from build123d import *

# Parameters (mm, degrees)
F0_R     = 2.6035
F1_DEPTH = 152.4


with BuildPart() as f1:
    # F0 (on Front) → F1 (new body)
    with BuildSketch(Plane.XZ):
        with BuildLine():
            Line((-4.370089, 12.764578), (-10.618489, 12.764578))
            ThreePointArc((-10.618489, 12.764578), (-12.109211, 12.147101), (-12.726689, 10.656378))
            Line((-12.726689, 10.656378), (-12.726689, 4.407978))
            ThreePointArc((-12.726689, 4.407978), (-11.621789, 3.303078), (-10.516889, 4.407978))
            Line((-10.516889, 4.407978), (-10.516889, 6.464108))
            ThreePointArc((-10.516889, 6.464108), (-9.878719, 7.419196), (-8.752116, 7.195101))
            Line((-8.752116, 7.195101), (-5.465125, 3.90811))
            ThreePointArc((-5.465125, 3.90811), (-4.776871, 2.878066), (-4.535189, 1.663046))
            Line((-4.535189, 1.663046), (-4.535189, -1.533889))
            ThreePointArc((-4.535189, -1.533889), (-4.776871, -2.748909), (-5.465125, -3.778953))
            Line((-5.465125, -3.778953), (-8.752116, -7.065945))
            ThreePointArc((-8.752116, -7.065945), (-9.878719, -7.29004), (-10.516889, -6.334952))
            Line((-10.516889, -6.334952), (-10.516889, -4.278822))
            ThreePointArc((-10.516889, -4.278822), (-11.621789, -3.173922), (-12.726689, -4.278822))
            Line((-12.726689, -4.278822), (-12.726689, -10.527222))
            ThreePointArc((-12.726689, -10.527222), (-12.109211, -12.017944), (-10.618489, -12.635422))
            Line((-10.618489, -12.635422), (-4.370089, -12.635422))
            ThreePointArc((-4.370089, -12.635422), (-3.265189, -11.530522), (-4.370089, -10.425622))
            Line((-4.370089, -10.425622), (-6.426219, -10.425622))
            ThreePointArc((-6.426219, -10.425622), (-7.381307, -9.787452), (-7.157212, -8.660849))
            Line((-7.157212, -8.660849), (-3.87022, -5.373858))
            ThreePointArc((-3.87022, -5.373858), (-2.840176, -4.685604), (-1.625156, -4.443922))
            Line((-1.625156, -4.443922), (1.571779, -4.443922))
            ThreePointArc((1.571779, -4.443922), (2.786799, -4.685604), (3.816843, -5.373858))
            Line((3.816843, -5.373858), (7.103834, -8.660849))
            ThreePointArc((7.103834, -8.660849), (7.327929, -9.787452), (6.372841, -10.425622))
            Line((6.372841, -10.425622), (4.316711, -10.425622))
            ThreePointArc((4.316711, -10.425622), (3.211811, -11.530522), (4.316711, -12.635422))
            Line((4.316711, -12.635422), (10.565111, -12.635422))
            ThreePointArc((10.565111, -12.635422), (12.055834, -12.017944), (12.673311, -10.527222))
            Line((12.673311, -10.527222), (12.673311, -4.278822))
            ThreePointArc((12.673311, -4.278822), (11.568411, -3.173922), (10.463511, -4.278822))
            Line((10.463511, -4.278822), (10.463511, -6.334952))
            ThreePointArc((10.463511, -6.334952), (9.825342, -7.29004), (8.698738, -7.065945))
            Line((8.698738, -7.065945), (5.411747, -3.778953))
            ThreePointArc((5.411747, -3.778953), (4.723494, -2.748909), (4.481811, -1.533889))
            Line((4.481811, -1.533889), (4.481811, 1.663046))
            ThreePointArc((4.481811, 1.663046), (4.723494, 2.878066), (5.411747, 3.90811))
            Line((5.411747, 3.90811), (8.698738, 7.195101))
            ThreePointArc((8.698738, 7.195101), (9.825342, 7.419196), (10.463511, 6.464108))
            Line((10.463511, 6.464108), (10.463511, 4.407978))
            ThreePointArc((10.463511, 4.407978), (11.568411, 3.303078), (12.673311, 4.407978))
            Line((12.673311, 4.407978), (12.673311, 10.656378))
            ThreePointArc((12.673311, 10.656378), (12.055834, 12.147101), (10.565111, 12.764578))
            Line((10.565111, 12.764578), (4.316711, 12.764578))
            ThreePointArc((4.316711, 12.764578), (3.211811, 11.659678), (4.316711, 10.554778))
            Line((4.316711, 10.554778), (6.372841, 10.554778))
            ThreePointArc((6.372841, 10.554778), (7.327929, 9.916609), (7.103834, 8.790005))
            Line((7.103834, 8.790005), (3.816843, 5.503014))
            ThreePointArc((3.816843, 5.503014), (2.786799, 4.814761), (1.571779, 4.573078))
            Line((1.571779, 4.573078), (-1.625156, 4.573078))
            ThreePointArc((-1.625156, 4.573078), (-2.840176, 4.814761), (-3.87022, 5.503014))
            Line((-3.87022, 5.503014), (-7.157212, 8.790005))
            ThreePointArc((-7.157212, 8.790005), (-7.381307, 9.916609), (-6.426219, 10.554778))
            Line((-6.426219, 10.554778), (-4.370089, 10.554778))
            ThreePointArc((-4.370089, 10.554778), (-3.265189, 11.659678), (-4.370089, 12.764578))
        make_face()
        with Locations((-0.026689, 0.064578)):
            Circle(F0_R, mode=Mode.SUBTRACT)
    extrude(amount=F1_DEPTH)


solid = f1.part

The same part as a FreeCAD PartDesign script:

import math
import FreeCAD as App
import Part
import Sketcher

V = App.Vector
Q = App.Units.Quantity

doc = App.newDocument("Part")
body = doc.addObject("PartDesign::Body", "Body")

sketch1 = body.newObject("Sketcher::SketchObject", "Sketch")
sketch1.AttachmentSupport = (doc.getObject("XZ_Plane"), [""])
sketch1.MapMode = "FlatFace"
sketch1.addGeometry([
    Part.LineSegment(V(-4.370089, 12.764578, 0), V(-10.618489, 12.764578, 0)),
    Part.ArcOfCircle(Part.Circle(V(-10.618489, 10.656378, 0), V(0, 0, 1), 2.1082), math.radians(90.000001), math.radians(179.999999)),
    Part.LineSegment(V(-12.726689, 10.656378, 0), V(-12.726689, 4.407978, 0)),
    Part.ArcOfCircle(Part.Circle(V(-11.621789, 4.407978, 0), V(0, 0, 1), 1.1049), math.radians(180), math.radians(360)),
    Part.LineSegment(V(-10.516889, 4.407978, 0), V(-10.516889, 6.464108, 0)),
    Part.ArcOfCircle(Part.Circle(V(-9.483109, 6.464107, 0), V(0, 0, 1), 1.03378), math.radians(45.000041), math.radians(179.999964)),
    Part.LineSegment(V(-8.752116, 7.195101, 0), V(-5.465125, 3.90811, 0)),
    Part.ArcOfCircle(Part.Circle(V(-7.710183, 1.663049, 0), V(0, 0, 1), 3.174994), math.radians(-0.000045), math.radians(45.000047)),
    Part.LineSegment(V(-4.535189, 1.663046, 0), V(-4.535189, -1.533889, 0)),
    Part.ArcOfCircle(Part.Circle(V(-7.710183, -1.533892, 0), V(0, 0, 1), 3.174994), math.radians(-45.000047), math.radians(0.000045)),
    Part.LineSegment(V(-5.465125, -3.778953, 0), V(-8.752116, -7.065945, 0)),
    Part.ArcOfCircle(Part.Circle(V(-9.483109, -6.334951, 0), V(0, 0, 1), 1.03378), math.radians(-179.999964), math.radians(-45.000041)),
    Part.LineSegment(V(-10.516889, -6.334952, 0), V(-10.516889, -4.278822, 0)),
    Part.ArcOfCircle(Part.Circle(V(-11.621789, -4.278822, 0), V(0, 0, 1), 1.1049), math.radians(0), math.radians(180)),
    Part.LineSegment(V(-12.726689, -4.278822, 0), V(-12.726689, -10.527222, 0)),
    Part.ArcOfCircle(Part.Circle(V(-10.618487, -10.52722, 0), V(0, 0, 1), 2.108202), math.radians(-179.999952), math.radians(-90.000048)),
    Part.LineSegment(V(-10.618489, -12.635422, 0), V(-4.370089, -12.635422, 0)),
    Part.ArcOfCircle(Part.Circle(V(-4.370089, -11.530522, 0), V(0, 0, 1), 1.1049), math.radians(-90), math.radians(90)),
    Part.LineSegment(V(-4.370089, -10.425622, 0), V(-6.426219, -10.425622, 0)),
    Part.ArcOfCircle(Part.Circle(V(-6.426218, -9.391842, 0), V(0, 0, 1), 1.03378), math.radians(135.000041), math.radians(269.999964)),
    Part.LineSegment(V(-7.157212, -8.660849, 0), V(-3.87022, -5.373858, 0)),
    Part.ArcOfCircle(Part.Circle(V(-1.625159, -7.618916, 0), V(0, 0, 1), 3.174994), math.radians(89.999955), math.radians(135.000047)),
    Part.LineSegment(V(-1.625156, -4.443922, 0), V(1.571779, -4.443922, 0)),
    Part.ArcOfCircle(Part.Circle(V(1.571782, -7.618916, 0), V(0, 0, 1), 3.174994), math.radians(44.999953), math.radians(90.000045)),
    Part.LineSegment(V(3.816843, -5.373858, 0), V(7.103834, -8.660849, 0)),
    Part.ArcOfCircle(Part.Circle(V(6.37284, -9.391842, 0), V(0, 0, 1), 1.03378), math.radians(-89.999964), math.radians(44.999959)),
    Part.LineSegment(V(6.372841, -10.425622, 0), V(4.316711, -10.425622, 0)),
    Part.ArcOfCircle(Part.Circle(V(4.316711, -11.530522, 0), V(0, 0, 1), 1.1049), math.radians(90), math.radians(270)),
    Part.LineSegment(V(4.316711, -12.635422, 0), V(10.565111, -12.635422, 0)),
    Part.ArcOfCircle(Part.Circle(V(10.565111, -10.527222, 0), V(0, 0, 1), 2.1082), math.radians(-89.999999), math.radians(-0.000001)),
    Part.LineSegment(V(12.673311, -10.527222, 0), V(12.673311, -4.278822, 0)),
    Part.ArcOfCircle(Part.Circle(V(11.568411, -4.278822, 0), V(0, 0, 1), 1.1049), math.radians(0), math.radians(180)),
    Part.LineSegment(V(10.463511, -4.278822, 0), V(10.463511, -6.334952, 0)),
    Part.ArcOfCircle(Part.Circle(V(9.429731, -6.334952, 0), V(0, 0, 1), 1.03378), math.radians(-134.999991), math.radians(-0.000004)),
    Part.LineSegment(V(8.698738, -7.065945, 0), V(5.411747, -3.778953, 0)),
    Part.ArcOfCircle(Part.Circle(V(7.656816, -1.533887, 0), V(0, 0, 1), 3.175005), math.radians(-179.999961), math.radians(-135.000037)),
    Part.LineSegment(V(4.481811, -1.533889, 0), V(4.481811, 1.663046, 0)),
    Part.ArcOfCircle(Part.Circle(V(7.656816, 1.663044, 0), V(0, 0, 1), 3.175005), math.radians(135.000037), math.radians(179.999961)),
    Part.LineSegment(V(5.411747, 3.90811, 0), V(8.698738, 7.195101, 0)),
    Part.ArcOfCircle(Part.Circle(V(9.429731, 6.464108, 0), V(0, 0, 1), 1.03378), math.radians(0.000004), math.radians(134.999991)),
    Part.LineSegment(V(10.463511, 6.464108, 0), V(10.463511, 4.407978, 0)),
    Part.ArcOfCircle(Part.Circle(V(11.568411, 4.407978, 0), V(0, 0, 1), 1.1049), math.radians(180), math.radians(360)),
    Part.LineSegment(V(12.673311, 4.407978, 0), V(12.673311, 10.656378, 0)),
    Part.ArcOfCircle(Part.Circle(V(10.565113, 10.65638, 0), V(0, 0, 1), 2.108198), math.radians(-0.000045), math.radians(90.000045)),
    Part.LineSegment(V(10.565111, 12.764578, 0), V(4.316711, 12.764578, 0)),
    Part.ArcOfCircle(Part.Circle(V(4.316711, 11.659678, 0), V(0, 0, 1), 1.1049), math.radians(90), math.radians(270)),
    Part.LineSegment(V(4.316711, 10.554778, 0), V(6.372841, 10.554778, 0)),
    Part.ArcOfCircle(Part.Circle(V(6.372841, 9.520998, 0), V(0, 0, 1), 1.03378), math.radians(-44.999991), math.radians(89.999996)),
    Part.LineSegment(V(7.103834, 8.790005, 0), V(3.816843, 5.503014, 0)),
    Part.ArcOfCircle(Part.Circle(V(1.571777, 7.748083, 0), V(0, 0, 1), 3.175005), math.radians(-89.999961), math.radians(-45.000037)),
    Part.LineSegment(V(1.571779, 4.573078, 0), V(-1.625156, 4.573078, 0)),
    Part.ArcOfCircle(Part.Circle(V(-1.625154, 7.748083, 0), V(0, 0, 1), 3.175005), math.radians(-134.999963), math.radians(-90.000039)),
    Part.LineSegment(V(-3.87022, 5.503014, 0), V(-7.157212, 8.790005, 0)),
    Part.ArcOfCircle(Part.Circle(V(-6.426219, 9.520998, 0), V(0, 0, 1), 1.03378), math.radians(90.000004), math.radians(224.999991)),
    Part.LineSegment(V(-6.426219, 10.554778, 0), V(-4.370089, 10.554778, 0)),
    Part.ArcOfCircle(Part.Circle(V(-4.370089, 11.659678, 0), V(0, 0, 1), 1.1049), math.radians(-90), math.radians(90)),
    Part.Circle(V(-0.026689, 0.064578, 0), V(0, 0, 1), 2.6035),
], False)
sketch1.addConstraint([
    Sketcher.Constraint("Tangent", 0, 2, 1, 1),
    Sketcher.Constraint("Tangent", 1, 2, 2, 1),
    Sketcher.Constraint("Tangent", 2, 2, 3, 1),
    Sketcher.Constraint("Tangent", 3, 2, 4, 1),
    Sketcher.Constraint("Tangent", 4, 2, 5, 2),
    Sketcher.Constraint("Tangent", 5, 1, 6, 1),
    Sketcher.Constraint("Tangent", 6, 2, 7, 2),
    Sketcher.Constraint("Tangent", 7, 1, 8, 1),
    Sketcher.Constraint("Tangent", 8, 2, 9, 2),
    Sketcher.Constraint("Tangent", 9, 1, 10, 1),
    Sketcher.Constraint("Tangent", 10, 2, 11, 2),
    Sketcher.Constraint("Tangent", 11, 1, 12, 1),
    Sketcher.Constraint("Tangent", 12, 2, 13, 1),
    Sketcher.Constraint("Tangent", 13, 2, 14, 1),
    Sketcher.Constraint("Tangent", 14, 2, 15, 1),
    Sketcher.Constraint("Tangent", 15, 2, 16, 1),
    Sketcher.Constraint("Tangent", 16, 2, 17, 1),
    Sketcher.Constraint("Tangent", 17, 2, 18, 1),
    Sketcher.Constraint("Tangent", 18, 2, 19, 2),
    Sketcher.Constraint("Tangent", 19, 1, 20, 1),
    Sketcher.Constraint("Tangent", 20, 2, 21, 2),
    Sketcher.Constraint("Tangent", 21, 1, 22, 1),
    Sketcher.Constraint("Tangent", 22, 2, 23, 2),
    Sketcher.Constraint("Tangent", 23, 1, 24, 1),
    Sketcher.Constraint("Tangent", 24, 2, 25, 2),
    Sketcher.Constraint("Tangent", 25, 1, 26, 1),
    Sketcher.Constraint("Tangent", 26, 2, 27, 1),
    Sketcher.Constraint("Tangent", 27, 2, 28, 1),
    Sketcher.Constraint("Tangent", 28, 2, 29, 1),
    Sketcher.Constraint("Tangent", 29, 2, 30, 1),
    Sketcher.Constraint("Tangent", 30, 2, 31, 1),
    Sketcher.Constraint("Tangent", 31, 2, 32, 1),
    Sketcher.Constraint("Tangent", 32, 2, 33, 2),
    Sketcher.Constraint("Tangent", 33, 1, 34, 1),
    Sketcher.Constraint("Tangent", 34, 2, 35, 2),
    Sketcher.Constraint("Tangent", 35, 1, 36, 1),
    Sketcher.Constraint("Tangent", 36, 2, 37, 2),
    Sketcher.Constraint("Tangent", 37, 1, 38, 1),
    Sketcher.Constraint("Tangent", 38, 2, 39, 2),
    Sketcher.Constraint("Tangent", 39, 1, 40, 1),
    Sketcher.Constraint("Tangent", 40, 2, 41, 1),
    Sketcher.Constraint("Tangent", 41, 2, 42, 1),
    Sketcher.Constraint("Tangent", 42, 2, 43, 1),
    Sketcher.Constraint("Tangent", 43, 2, 44, 1),
    Sketcher.Constraint("Tangent", 44, 2, 45, 1),
    Sketcher.Constraint("Tangent", 45, 2, 46, 1),
    Sketcher.Constraint("Tangent", 46, 2, 47, 2),
    Sketcher.Constraint("Tangent", 47, 1, 48, 1),
    Sketcher.Constraint("Tangent", 48, 2, 49, 2),
    Sketcher.Constraint("Tangent", 49, 1, 50, 1),
    Sketcher.Constraint("Tangent", 50, 2, 51, 2),
    Sketcher.Constraint("Tangent", 51, 1, 52, 1),
    Sketcher.Constraint("Tangent", 52, 2, 53, 2),
    Sketcher.Constraint("Tangent", 53, 1, 54, 1),
    Sketcher.Constraint("Tangent", 54, 2, 55, 1),
    Sketcher.Constraint("Tangent", 55, 2, 0, 1),
    Sketcher.Constraint("Horizontal", 0),
    Sketcher.Constraint("Vertical", 2),
    Sketcher.Constraint("Vertical", 4),
    Sketcher.Constraint("Vertical", 8),
    Sketcher.Constraint("Vertical", 12),
    Sketcher.Constraint("Vertical", 14),
    Sketcher.Constraint("Horizontal", 16),
    Sketcher.Constraint("Horizontal", 18),
    Sketcher.Constraint("Horizontal", 22),
    Sketcher.Constraint("Horizontal", 26),
    Sketcher.Constraint("Horizontal", 28),
    Sketcher.Constraint("Vertical", 30),
    Sketcher.Constraint("Vertical", 32),
    Sketcher.Constraint("Vertical", 36),
    Sketcher.Constraint("Vertical", 40),
    Sketcher.Constraint("Vertical", 42),
    Sketcher.Constraint("Horizontal", 44),
    Sketcher.Constraint("Horizontal", 46),
    Sketcher.Constraint("Horizontal", 50),
    Sketcher.Constraint("Horizontal", 54),
    Sketcher.Constraint("Equal", 7, 9),
    Sketcher.Constraint("Equal", 5, 11),
    Sketcher.Constraint("Equal", 3, 13),
    Sketcher.Constraint("Equal", 1, 15),
    Sketcher.Constraint("Equal", 13, 17),
    Sketcher.Constraint("Equal", 11, 19),
    Sketcher.Constraint("Equal", 9, 21),
    Sketcher.Constraint("Equal", 21, 23),
    Sketcher.Constraint("Equal", 19, 25),
    Sketcher.Constraint("Equal", 17, 27),
    Sketcher.Constraint("Equal", 15, 29),
    Sketcher.Constraint("Equal", 27, 31),
    Sketcher.Constraint("Equal", 25, 33),
    Sketcher.Constraint("Equal", 35, 37),
    Sketcher.Constraint("Equal", 33, 39),
    Sketcher.Constraint("Equal", 31, 41),
    Sketcher.Constraint("Equal", 29, 43),
    Sketcher.Constraint("Equal", 41, 45),
    Sketcher.Constraint("Equal", 39, 47),
    Sketcher.Constraint("Equal", 37, 49),
    Sketcher.Constraint("Equal", 49, 51),
    Sketcher.Constraint("Equal", 47, 53),
    Sketcher.Constraint("Equal", 45, 55),
    Sketcher.Constraint("Perpendicular", 6, 10),
    Sketcher.Constraint("Parallel", 10, 20),
    Sketcher.Constraint("Perpendicular", 20, 24),
    Sketcher.Constraint("Parallel", 24, 34),
    Sketcher.Constraint("Perpendicular", 34, 38),
    Sketcher.Constraint("Parallel", 38, 48),
    Sketcher.Constraint("Perpendicular", 48, 52),
    Sketcher.Constraint("Horizontal", 19, 3, 25, 3),
    Sketcher.Constraint("Horizontal", 13, 3, 31, 3),
    Sketcher.Constraint("Horizontal", 11, 3, 33, 3),
    Sketcher.Constraint("Horizontal", 5, 3, 39, 3),
    Sketcher.Constraint("Horizontal", 3, 3, 41, 3),
    Sketcher.Constraint("Horizontal", 1, 3, 43, 3),
    Sketcher.Constraint("Horizontal", 20, 2, 23, 1),
    Sketcher.Constraint("Horizontal", 9, 1, 34, 2),
    Sketcher.Constraint("Horizontal", 8, 2, 35, 1),
    Sketcher.Constraint("Horizontal", 7, 1, 36, 2),
    Sketcher.Constraint("Vertical", 5, 3, 11, 3),
    Sketcher.Constraint("Vertical", 27, 3, 45, 3),
    Sketcher.Constraint("Vertical", 25, 3, 47, 3),
    Sketcher.Constraint("Vertical", 19, 3, 53, 3),
    Sketcher.Constraint("Vertical", 17, 3, 55, 3),
    Sketcher.Constraint("Vertical", 23, 1, 48, 2),
    Sketcher.Constraint("Equal", 18, 26),
    Sketcher.Constraint("Equal", 16, 28),
    Sketcher.Constraint("Equal", 44, 2),
    Sketcher.Constraint("Equal", 54, 4),
    Sketcher.Constraint("Equal", 50, 8),
    Sketcher.Constraint("Equal", 4, 12),
    Sketcher.Constraint("Equal", 2, 14),
    Sketcher.Constraint("Equal", 10, 20),
    Sketcher.Constraint("Diameter", 56, Q("0.205 in")),
    Sketcher.Constraint("Radius", 1, Q("0.083 in")),
    Sketcher.Constraint("Radius", 35, Q("0.1250002 in")),
    Sketcher.Constraint("Radius", 3, Q("0.0435 in")),
    Sketcher.Constraint("Radius", 5, Q("0.0407 in")),
    Sketcher.Constraint("DistanceX", 0, 2, 0, 1, Q("0.246 in")),
    Sketcher.Constraint("DistanceX", 18, 2, 18, 1, 2.05613),
    Sketcher.Constraint("DistanceY", -1, 1, 5, 1, 7.195101),
    Sketcher.Constraint("DistanceX", 22, 1, 22, 2, 3.196935),
    Sketcher.Constraint("DistanceX", 1, 3, -1, 1, 10.618489),
    Sketcher.Constraint("DistanceY", -1, 1, 7, 3, 1.663049),
    Sketcher.Constraint("DistanceX", 56, 3, -1, 1, 0.026689),
    Sketcher.Constraint("DistanceY", -1, 1, 56, 3, 0.064578),
])
pad1 = body.newObject("PartDesign::Pad", "Pad")
pad1.Profile = sketch1
pad1.Length = Q("6 in")

doc.recompute()
